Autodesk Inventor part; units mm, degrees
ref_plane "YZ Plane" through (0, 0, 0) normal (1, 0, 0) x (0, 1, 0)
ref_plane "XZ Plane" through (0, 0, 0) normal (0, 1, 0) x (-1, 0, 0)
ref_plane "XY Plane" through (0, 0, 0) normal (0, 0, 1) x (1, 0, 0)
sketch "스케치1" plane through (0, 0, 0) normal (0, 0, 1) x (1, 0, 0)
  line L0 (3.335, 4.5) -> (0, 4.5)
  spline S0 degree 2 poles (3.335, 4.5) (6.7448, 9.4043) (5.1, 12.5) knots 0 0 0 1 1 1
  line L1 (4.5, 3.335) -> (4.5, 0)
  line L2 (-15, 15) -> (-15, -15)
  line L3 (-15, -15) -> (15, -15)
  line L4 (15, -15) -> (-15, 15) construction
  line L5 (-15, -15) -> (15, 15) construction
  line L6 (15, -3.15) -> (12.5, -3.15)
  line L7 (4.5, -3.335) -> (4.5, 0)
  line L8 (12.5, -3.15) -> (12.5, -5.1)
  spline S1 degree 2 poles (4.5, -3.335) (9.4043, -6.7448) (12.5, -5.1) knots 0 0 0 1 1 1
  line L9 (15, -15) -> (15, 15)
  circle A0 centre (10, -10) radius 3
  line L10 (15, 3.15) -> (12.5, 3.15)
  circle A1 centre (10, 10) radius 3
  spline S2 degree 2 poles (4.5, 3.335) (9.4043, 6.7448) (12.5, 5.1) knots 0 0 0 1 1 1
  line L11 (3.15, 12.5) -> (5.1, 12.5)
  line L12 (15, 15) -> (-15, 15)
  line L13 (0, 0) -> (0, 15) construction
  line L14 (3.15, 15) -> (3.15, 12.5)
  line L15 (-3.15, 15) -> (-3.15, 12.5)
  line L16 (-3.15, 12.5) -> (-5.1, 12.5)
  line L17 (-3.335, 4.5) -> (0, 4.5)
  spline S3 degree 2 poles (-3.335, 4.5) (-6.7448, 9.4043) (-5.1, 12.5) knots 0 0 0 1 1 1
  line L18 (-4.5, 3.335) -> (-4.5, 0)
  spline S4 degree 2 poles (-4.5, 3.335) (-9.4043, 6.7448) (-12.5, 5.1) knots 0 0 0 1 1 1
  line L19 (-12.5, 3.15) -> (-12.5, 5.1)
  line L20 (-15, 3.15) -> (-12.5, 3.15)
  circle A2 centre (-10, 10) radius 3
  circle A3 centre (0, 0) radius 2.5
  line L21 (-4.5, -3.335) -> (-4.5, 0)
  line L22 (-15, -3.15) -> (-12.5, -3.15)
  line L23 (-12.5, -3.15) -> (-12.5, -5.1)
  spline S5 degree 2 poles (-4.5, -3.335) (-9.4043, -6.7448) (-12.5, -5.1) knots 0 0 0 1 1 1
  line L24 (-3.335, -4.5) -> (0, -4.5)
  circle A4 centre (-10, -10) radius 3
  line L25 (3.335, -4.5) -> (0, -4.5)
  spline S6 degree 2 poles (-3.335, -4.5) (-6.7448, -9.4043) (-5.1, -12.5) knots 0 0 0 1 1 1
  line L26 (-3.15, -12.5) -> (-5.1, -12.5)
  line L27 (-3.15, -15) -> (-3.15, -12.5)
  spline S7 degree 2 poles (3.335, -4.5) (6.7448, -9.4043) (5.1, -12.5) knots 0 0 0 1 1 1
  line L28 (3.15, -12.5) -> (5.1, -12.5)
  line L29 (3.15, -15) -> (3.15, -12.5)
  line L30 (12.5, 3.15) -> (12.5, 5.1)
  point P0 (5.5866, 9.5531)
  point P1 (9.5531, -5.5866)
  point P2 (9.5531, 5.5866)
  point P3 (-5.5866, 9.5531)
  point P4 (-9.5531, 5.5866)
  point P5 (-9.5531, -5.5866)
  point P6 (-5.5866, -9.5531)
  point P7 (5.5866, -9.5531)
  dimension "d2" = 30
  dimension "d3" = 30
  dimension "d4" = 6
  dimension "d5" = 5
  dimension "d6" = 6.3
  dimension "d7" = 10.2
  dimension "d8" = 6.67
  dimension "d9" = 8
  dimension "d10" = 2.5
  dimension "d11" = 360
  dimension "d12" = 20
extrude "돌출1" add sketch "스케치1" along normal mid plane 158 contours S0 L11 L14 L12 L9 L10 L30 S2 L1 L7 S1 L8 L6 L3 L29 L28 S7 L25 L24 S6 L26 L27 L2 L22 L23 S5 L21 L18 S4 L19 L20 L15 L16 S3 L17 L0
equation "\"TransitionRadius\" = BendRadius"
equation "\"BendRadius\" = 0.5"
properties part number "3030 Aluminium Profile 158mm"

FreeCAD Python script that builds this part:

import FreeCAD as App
import Part
import Sketcher

V = App.Vector

doc = App.newDocument("Part")
params = doc.addObject("Spreadsheet::Sheet", "Params")
for row, (alias, value) in enumerate([
    ("sketch1_diameter", "6 mm"),
    ("sketch1_diameter2", "6 mm"),
    ("sketch1_diameter3", "6 mm"),
    ("sketch1_diameter4", "5 mm"),
    ("sketch1_diameter5", "6 mm"),
    ("pad1_length", "158 mm"),
], start=1):
    params.set(f"A{row}", alias)
    params.set(f"B{row}", "=" + value)
    params.setAlias(f"B{row}", alias)

body = doc.addObject("PartDesign::Body", "Body")

# Sketch on XY plane
sketch1 = doc.addObject("Sketcher::SketchObject", "Sketch")
body.addObject(sketch1)
sketch1.AttachmentSupport = (doc.XY_Plane, [""])
sketch1.MapMode = "FlatFace"
sketch1.addGeometry([
    Part.BSplineCurve([V(3.335, 4.5, 0), V(6.7448, 9.4043, 0), V(5.1, 12.5, 0)], [3, 3], [0, 1], False, 2, [1, 1, 1], False),  # 0
    Part.LineSegment(V(3.335, 4.5, 0), V(-3.335, 4.5, 0)),  # 1
    Part.BSplineCurve([V(-3.335, 4.5, 0), V(-6.7448, 9.4043, 0), V(-5.1, 12.5, 0)], [3, 3], [0, 1], False, 2, [1, 1, 1], False),  # 2
    Part.LineSegment(V(-5.1, 12.5, 0), V(-3.15, 12.5, 0)),  # 3
    Part.LineSegment(V(-3.15, 12.5, 0), V(-3.15, 15, 0)),  # 4
    Part.LineSegment(V(-3.15, 15, 0), V(-15, 15, 0)),  # 5
    Part.LineSegment(V(-15, 15, 0), V(-15, 3.15, 0)),  # 6
    Part.LineSegment(V(-15, 3.15, 0), V(-12.5, 3.15, 0)),  # 7
    Part.LineSegment(V(-12.5, 3.15, 0), V(-12.5, 5.1, 0)),  # 8
    Part.BSplineCurve([V(-4.5, 3.335, 0), V(-9.4043, 6.7448, 0), V(-12.5, 5.1, 0)], [3, 3], [0, 1], False, 2, [1, 1, 1], False),  # 9
    Part.LineSegment(V(-4.5, 3.335, 0), V(-4.5, -3.335, 0)),  # 10
    Part.BSplineCurve([V(-4.5, -3.335, 0), V(-9.4043, -6.7448, 0), V(-12.5, -5.1, 0)], [3, 3], [0, 1], False, 2, [1, 1, 1], False),  # 11
    Part.LineSegment(V(-12.5, -5.1, 0), V(-12.5, -3.15, 0)),  # 12
    Part.LineSegment(V(-12.5, -3.15, 0), V(-15, -3.15, 0)),  # 13
    Part.LineSegment(V(-15, -3.15, 0), V(-15, -15, 0)),  # 14
    Part.LineSegment(V(-15, -15, 0), V(-3.15, -15, 0)),  # 15
    Part.LineSegment(V(-3.15, -15, 0), V(-3.15, -12.5, 0)),  # 16
    Part.LineSegment(V(-3.15, -12.5, 0), V(-5.1, -12.5, 0)),  # 17
    Part.BSplineCurve([V(-3.335, -4.5, 0), V(-6.7448, -9.4043, 0), V(-5.1, -12.5, 0)], [3, 3], [0, 1], False, 2, [1, 1, 1], False),  # 18
    Part.LineSegment(V(-3.335, -4.5, 0), V(3.335, -4.5, 0)),  # 19
    Part.BSplineCurve([V(3.335, -4.5, 0), V(6.7448, -9.4043, 0), V(5.1, -12.5, 0)], [3, 3], [0, 1], False, 2, [1, 1, 1], False),  # 20
    Part.LineSegment(V(5.1, -12.5, 0), V(3.15, -12.5, 0)),  # 21
    Part.LineSegment(V(3.15, -12.5, 0), V(3.15, -15, 0)),  # 22
    Part.LineSegment(V(3.15, -15, 0), V(15, -15, 0)),  # 23
    Part.LineSegment(V(15, -15, 0), V(15, -3.15, 0)),  # 24
    Part.LineSegment(V(15, -3.15, 0), V(12.5, -3.15, 0)),  # 25
    Part.LineSegment(V(12.5, -3.15, 0), V(12.5, -5.1, 0)),  # 26
    Part.BSplineCurve([V(4.5, -3.335, 0), V(9.4043, -6.7448, 0), V(12.5, -5.1, 0)], [3, 3], [0, 1], False, 2, [1, 1, 1], False),  # 27
    Part.LineSegment(V(4.5, -3.335, 0), V(4.5, 3.335, 0)),  # 28
    Part.BSplineCurve([V(4.5, 3.335, 0), V(9.4043, 6.7448, 0), V(12.5, 5.1, 0)], [3, 3], [0, 1], False, 2, [1, 1, 1], False),  # 29
    Part.LineSegment(V(12.5, 5.1, 0), V(12.5, 3.15, 0)),  # 30
    Part.LineSegment(V(12.5, 3.15, 0), V(15, 3.15, 0)),  # 31
    Part.LineSegment(V(15, 3.15, 0), V(15, 15, 0)),  # 32
    Part.LineSegment(V(15, 15, 0), V(3.15, 15, 0)),  # 33
    Part.LineSegment(V(3.15, 15, 0), V(3.15, 12.5, 0)),  # 34
    Part.LineSegment(V(3.15, 12.5, 0), V(5.1, 12.5, 0)),  # 35
    Part.Circle(V(-10, -10, 0), V(0, 0, 1), 3),  # 36
    Part.Circle(V(10, -10, 0), V(0, 0, 1), 3),  # 37
    Part.Circle(V(-10, 10, 0), V(0, 0, 1), 3),  # 38
    Part.Circle(V(0, 0, 0), V(0, 0, 1), 2.5),  # 39
    Part.Circle(V(10, 10, 0), V(0, 0, 1), 3),  # 40
], False)
sketch1.addConstraint([
    Sketcher.Constraint("Block", 0),
    Sketcher.Constraint("Block", 2),
    Sketcher.Constraint("Block", 9),
    Sketcher.Constraint("Block", 11),
    Sketcher.Constraint("Block", 18),
    Sketcher.Constraint("Block", 20),
    Sketcher.Constraint("Block", 27),
    Sketcher.Constraint("Block", 29),
    Sketcher.Constraint("Coincident", 0, 1, 1, 1),
    Sketcher.Constraint("Coincident", 1, 2, 2, 1),
    Sketcher.Constraint("Coincident", 2, 2, 3, 1),
    Sketcher.Constraint("Coincident", 3, 2, 4, 1),
    Sketcher.Constraint("Coincident", 4, 2, 5, 1),
    Sketcher.Constraint("Coincident", 5, 2, 6, 1),
    Sketcher.Constraint("Coincident", 6, 2, 7, 1),
    Sketcher.Constraint("Coincident", 7, 2, 8, 1),
    Sketcher.Constraint("Coincident", 8, 2, 9, 2),
    Sketcher.Constraint("Coincident", 9, 1, 10, 1),
    Sketcher.Constraint("Coincident", 10, 2, 11, 1),
    Sketcher.Constraint("Coincident", 11, 2, 12, 1),
    Sketcher.Constraint("Coincident", 12, 2, 13, 1),
    Sketcher.Constraint("Coincident", 13, 2, 14, 1),
    Sketcher.Constraint("Coincident", 14, 2, 15, 1),
    Sketcher.Constraint("Coincident", 15, 2, 16, 1),
    Sketcher.Constraint("Coincident", 16, 2, 17, 1),
    Sketcher.Constraint("Coincident", 17, 2, 18, 2),
    Sketcher.Constraint("Coincident", 18, 1, 19, 1),
    Sketcher.Constraint("Coincident", 19, 2, 20, 1),
    Sketcher.Constraint("Coincident", 20, 2, 21, 1),
    Sketcher.Constraint("Coincident", 21, 2, 22, 1),
    Sketcher.Constraint("Coincident", 22, 2, 23, 1),
    Sketcher.Constraint("Coincident", 23, 2, 24, 1),
    Sketcher.Constraint("Coincident", 24, 2, 25, 1),
    Sketcher.Constraint("Coincident", 25, 2, 26, 1),
    Sketcher.Constraint("Coincident", 26, 2, 27, 2),
    Sketcher.Constraint("Coincident", 27, 1, 28, 1),
    Sketcher.Constraint("Coincident", 28, 2, 29, 1),
    Sketcher.Constraint("Coincident", 29, 2, 30, 1),
    Sketcher.Constraint("Coincident", 30, 2, 31, 1),
    Sketcher.Constraint("Coincident", 31, 2, 32, 1),
    Sketcher.Constraint("Coincident", 32, 2, 33, 1),
    Sketcher.Constraint("Coincident", 33, 2, 34, 1),
    Sketcher.Constraint("Coincident", 34, 2, 35, 1),
    Sketcher.Constraint("Coincident", 35, 2, 0, 2),
    Sketcher.Constraint("Horizontal", 3),
    Sketcher.Constraint("Vertical", 4),
    Sketcher.Constraint("Horizontal", 5),
    Sketcher.Constraint("Vertical", 6),
    Sketcher.Constraint("Horizontal", 7),
    Sketcher.Constraint("Vertical", 8),
    Sketcher.Constraint("Vertical", 12),
    Sketcher.Constraint("Horizontal", 13),
    Sketcher.Constraint("Vertical", 14),
    Sketcher.Constraint("Horizontal", 15),
    Sketcher.Constraint("Vertical", 16),
    Sketcher.Constraint("Horizontal", 17),
    Sketcher.Constraint("Horizontal", 21),
    Sketcher.Constraint("Vertical", 22),
    Sketcher.Constraint("Horizontal", 23),
    Sketcher.Constraint("Vertical", 24),
    Sketcher.Constraint("Horizontal", 25),
    Sketcher.Constraint("Vertical", 26),
    Sketcher.Constraint("Vertical", 30),
    Sketcher.Constraint("Horizontal", 31),
    Sketcher.Constraint("Vertical", 32),
    Sketcher.Constraint("Horizontal", 33),
    Sketcher.Constraint("Vertical", 34),
    Sketcher.Constraint("Horizontal", 35),
    Sketcher.Constraint("Coincident", 39, 3, -1, 1),
    Sketcher.Constraint("Diameter", 36, 6.0),
    Sketcher.Constraint("Diameter", 37, 6.0),
    Sketcher.Constraint("Diameter", 38, 6.0),
    Sketcher.Constraint("Diameter", 39, 5.0),
    Sketcher.Constraint("Diameter", 40, 6.0),
    Sketcher.Constraint("DistanceX", 7, 1, 7, 2, 2.5),
    Sketcher.Constraint("DistanceX", 13, 2, 13, 1, 2.5),
    Sketcher.Constraint("DistanceX", 25, 2, 25, 1, 2.5),
    Sketcher.Constraint("DistanceX", 31, 1, 31, 2, 2.5),
    Sketcher.Constraint("DistanceY", 4, 1, 4, 2, 2.5),
    Sketcher.Constraint("DistanceY", 16, 1, 16, 2, 2.5),
    Sketcher.Constraint("DistanceY", 22, 2, 22, 1, 2.5),
    Sketcher.Constraint("DistanceY", 34, 2, 34, 1, 2.5),
    Sketcher.Constraint("DistanceX", 36, 3, 37, 3, 20.0),
    Sketcher.Constraint("DistanceY", 36, 3, 38, 3, 20.0),
    Sketcher.Constraint("DistanceX", 38, 3, 37, 3, 20.0),
    Sketcher.Constraint("DistanceY", 37, 3, 38, 3, 20.0),
    Sketcher.Constraint("DistanceY", 37, 3, 40, 3, 20.0),
    Sketcher.Constraint("DistanceX", 38, 3, 40, 3, 20.0),
    Sketcher.Constraint("DistanceY", 38, 3, 4, 2, 5.0),
    Sketcher.Constraint("DistanceX", 5, 2, 38, 3, 5.0),
    Sketcher.Constraint("DistanceY", 12, 2, 7, 2, 6.3),
    Sketcher.Constraint("DistanceX", 16, 2, 21, 2, 6.3),
    Sketcher.Constraint("DistanceY", 25, 2, 30, 2, 6.3),
    Sketcher.Constraint("DistanceX", 4, 2, 33, 2, 6.3),
    Sketcher.Constraint("DistanceX", 3, 1, 3, 2, 1.95),
    Sketcher.Constraint("DistanceX", 15, 1, 15, 2, 11.85),
    Sketcher.Constraint("DistanceY", 6, 2, 6, 1, 11.85),
    Sketcher.Constraint("DistanceY", 24, 1, 24, 2, 11.85),
])
sketch1.setExpression("Constraints[69]", "Params.sketch1_diameter")
sketch1.setExpression("Constraints[70]", "Params.sketch1_diameter2")
sketch1.setExpression("Constraints[71]", "Params.sketch1_diameter3")
sketch1.setExpression("Constraints[72]", "Params.sketch1_diameter4")
sketch1.setExpression("Constraints[73]", "Params.sketch1_diameter5")
pad1 = doc.addObject("PartDesign::Pad", "Pad")
body.addObject(pad1)
pad1.Profile = sketch1
pad1.setExpression("Length", "Params.pad1_length")
pad1.Midplane = True

doc.recompute()
